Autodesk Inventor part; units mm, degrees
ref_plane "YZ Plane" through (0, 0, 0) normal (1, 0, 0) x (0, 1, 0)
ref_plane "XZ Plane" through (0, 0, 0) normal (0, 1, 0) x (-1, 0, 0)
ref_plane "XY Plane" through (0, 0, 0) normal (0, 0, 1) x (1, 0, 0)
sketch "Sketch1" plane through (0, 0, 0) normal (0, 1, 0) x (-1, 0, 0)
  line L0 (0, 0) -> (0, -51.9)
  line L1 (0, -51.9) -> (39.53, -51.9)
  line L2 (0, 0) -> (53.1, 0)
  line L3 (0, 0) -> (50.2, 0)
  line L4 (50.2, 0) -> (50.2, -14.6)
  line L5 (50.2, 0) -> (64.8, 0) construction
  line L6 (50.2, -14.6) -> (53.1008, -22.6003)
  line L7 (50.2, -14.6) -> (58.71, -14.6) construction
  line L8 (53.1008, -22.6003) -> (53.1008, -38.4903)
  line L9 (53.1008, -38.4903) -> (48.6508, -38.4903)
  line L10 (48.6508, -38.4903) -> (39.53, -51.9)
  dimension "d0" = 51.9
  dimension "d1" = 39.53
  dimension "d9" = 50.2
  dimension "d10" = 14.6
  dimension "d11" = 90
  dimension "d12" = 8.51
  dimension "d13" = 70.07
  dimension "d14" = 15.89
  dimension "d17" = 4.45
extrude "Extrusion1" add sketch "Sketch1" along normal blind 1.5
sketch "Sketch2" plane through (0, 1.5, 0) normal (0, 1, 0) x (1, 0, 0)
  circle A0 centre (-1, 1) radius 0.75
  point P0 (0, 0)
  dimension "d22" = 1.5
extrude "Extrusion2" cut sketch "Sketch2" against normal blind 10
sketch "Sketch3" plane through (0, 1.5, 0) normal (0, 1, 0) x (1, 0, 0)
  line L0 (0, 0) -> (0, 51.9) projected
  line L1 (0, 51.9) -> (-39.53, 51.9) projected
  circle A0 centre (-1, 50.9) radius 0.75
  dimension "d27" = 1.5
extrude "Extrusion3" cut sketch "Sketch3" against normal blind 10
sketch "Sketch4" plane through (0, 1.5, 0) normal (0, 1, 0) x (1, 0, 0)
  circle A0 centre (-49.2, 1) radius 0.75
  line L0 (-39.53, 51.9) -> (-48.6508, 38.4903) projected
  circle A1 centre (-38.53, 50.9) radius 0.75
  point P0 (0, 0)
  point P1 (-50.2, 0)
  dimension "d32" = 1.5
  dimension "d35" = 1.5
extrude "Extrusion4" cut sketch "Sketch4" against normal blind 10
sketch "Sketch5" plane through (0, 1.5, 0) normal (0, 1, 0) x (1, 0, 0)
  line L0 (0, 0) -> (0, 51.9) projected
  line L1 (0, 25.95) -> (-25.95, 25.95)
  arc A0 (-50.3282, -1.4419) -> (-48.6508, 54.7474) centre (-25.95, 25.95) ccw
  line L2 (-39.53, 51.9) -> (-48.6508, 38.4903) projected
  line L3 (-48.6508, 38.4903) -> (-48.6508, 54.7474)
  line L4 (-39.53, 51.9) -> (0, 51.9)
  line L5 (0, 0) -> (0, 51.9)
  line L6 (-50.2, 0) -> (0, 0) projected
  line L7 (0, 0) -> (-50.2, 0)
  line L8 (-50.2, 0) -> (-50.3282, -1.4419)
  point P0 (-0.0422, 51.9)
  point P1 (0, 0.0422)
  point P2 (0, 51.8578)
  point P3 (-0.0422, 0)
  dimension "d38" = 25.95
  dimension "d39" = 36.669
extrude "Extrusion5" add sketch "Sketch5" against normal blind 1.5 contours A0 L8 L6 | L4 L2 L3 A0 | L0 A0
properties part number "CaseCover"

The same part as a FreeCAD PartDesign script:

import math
import FreeCAD as App
import Part
import Sketcher
from FreeCAD import Vector
Q = App.Units.Quantity

doc = App.newDocument("Part")
params = doc.addObject("Spreadsheet::Sheet", "Params")
for row, (alias, value) in enumerate([
    ("sketch1_width", "50.2 mm"),
    ("sketch1_height", "51.9 mm"),
    ("sketch1_height2", "14.6 mm"),
    ("sketch1_width2", "39.53 mm"),
    ("sketch1_width3", "4.45 mm"),
    ("pad1_length", "1.5 mm"),
    ("sketch2_diameter", "1.5 mm"),
    ("pocket1_length", "10 mm"),
    ("sketch3_diameter", "1.5 mm"),
    ("pocket2_length", "10 mm"),
    ("sketch4_diameter", "1.5 mm"),
    ("pocket3_length", "10 mm"),
    ("pad2_length", "1.5 mm"),
], start=1):
    params.set(f"A{row}", alias)
    params.set(f"B{row}", "=" + value)
    params.setAlias(f"B{row}", alias)

body = doc.addObject("PartDesign::Body", "Body")

# Sketch on XZ plane
sketch1 = body.newObject("Sketcher::SketchObject", "Sketch")
sketch1.AttachmentSupport = (doc.getObject("XZ_Plane"), [""])
sketch1.MapMode = "FlatFace"
sketch1.addGeometry(Part.LineSegment(Vector(-50.2, 0, 0), Vector(0, 0, 0)), False)
sketch1.addGeometry(Part.LineSegment(Vector(0, 0, 0), Vector(0, -51.9, 0)), False)
sketch1.addGeometry(Part.LineSegment(Vector(0, -51.9, 0), Vector(-39.5, -51.9, 0)), False)
sketch1.addGeometry(Part.LineSegment(Vector(-39.5, -51.9, 0), Vector(-48.7, -38.5, 0)), False)
sketch1.addGeometry(Part.LineSegment(Vector(-48.7, -38.5, 0), Vector(-53.1, -38.5, 0)), False)
sketch1.addGeometry(Part.LineSegment(Vector(-53.1, -38.5, 0), Vector(-53.1, -22.6, 0)), False)
sketch1.addGeometry(Part.LineSegment(Vector(-53.1, -22.6, 0), Vector(-50.2, -14.6, 0)), False)
sketch1.addGeometry(Part.LineSegment(Vector(-50.2, -14.6, 0), Vector(-50.2, 0, 0)), False)
sketch1.addConstraint(Sketcher.Constraint("Coincident", 0, 2, 1, 1))
sketch1.addConstraint(Sketcher.Constraint("Coincident", 1, 2, 2, 1))
sketch1.addConstraint(Sketcher.Constraint("Coincident", 2, 2, 3, 1))
sketch1.addConstraint(Sketcher.Constraint("Coincident", 3, 2, 4, 1))
sketch1.addConstraint(Sketcher.Constraint("Coincident", 4, 2, 5, 1))
sketch1.addConstraint(Sketcher.Constraint("Coincident", 5, 2, 6, 1))
sketch1.addConstraint(Sketcher.Constraint("Coincident", 6, 2, 7, 1))
sketch1.addConstraint(Sketcher.Constraint("Coincident", 7, 2, 0, 1))
sketch1.addConstraint(Sketcher.Constraint("Horizontal", 0))
sketch1.addConstraint(Sketcher.Constraint("Vertical", 1))
sketch1.addConstraint(Sketcher.Constraint("Horizontal", 2))
sketch1.addConstraint(Sketcher.Constraint("Horizontal", 4))
sketch1.addConstraint(Sketcher.Constraint("Vertical", 5))
sketch1.addConstraint(Sketcher.Constraint("Vertical", 7))
sketch1.addConstraint(Sketcher.Constraint("Coincident", 0, 2, -1, 1))
sketch1.addConstraint(Sketcher.Constraint("DistanceX", 0, 1, 0, 2, 50.2))
sketch1.addConstraint(Sketcher.Constraint("DistanceY", 1, 2, 1, 1, 51.9))
sketch1.addConstraint(Sketcher.Constraint("DistanceY", 7, 1, 7, 2, 14.6))
sketch1.addConstraint(Sketcher.Constraint("DistanceX", 2, 2, 2, 1, 39.53))
sketch1.addConstraint(Sketcher.Constraint("DistanceX", 4, 2, 4, 1, 4.45))
sketch1.addConstraint(Sketcher.Constraint("DistanceY", 5, 1, 5, 2, 15.89))
sketch1.addConstraint(Sketcher.Constraint("Angle", 6, Q("70.07 deg")))
sketch1.addConstraint(Sketcher.Constraint("Distance", 6, 8.51))
sketch1.setExpression("Constraints[15]", "Params.sketch1_width")
sketch1.setExpression("Constraints[16]", "Params.sketch1_height")
sketch1.setExpression("Constraints[17]", "Params.sketch1_height2")
sketch1.setExpression("Constraints[18]", "Params.sketch1_width2")
sketch1.setExpression("Constraints[19]", "Params.sketch1_width3")
pad1 = body.newObject("PartDesign::Pad", "Pad")
pad1.Profile = sketch1
pad1.setExpression("Length", "Params.pad1_length")
pad1.Reversed = True

# Sketch on XZ plane
sketch2 = body.newObject("Sketcher::SketchObject", "Sketch001")
sketch2.AttachmentSupport = (doc.getObject("XZ_Plane"), [""])
sketch2.MapMode = "FlatFace"
sketch2.AttachmentOffset = App.Placement(Vector(0, 0, -1.5), App.Rotation())
sketch2.addGeometry(Part.Circle(Vector(-1, -1, 0), Vector(0, 0, 1), 0.8), False)
sketch2.addConstraint(Sketcher.Constraint("Diameter", 0, 1.5))
sketch2.addConstraint(Sketcher.Constraint("DistanceX", 0, 3, -1, 1, 1.0))
sketch2.addConstraint(Sketcher.Constraint("DistanceY", 0, 3, -1, 1, 1.0))
sketch2.setExpression("Constraints[0]", "Params.sketch2_diameter")
pocket1 = body.newObject("PartDesign::Pocket", "Pocket")
pocket1.Profile = sketch2
pocket1.setExpression("Length", "Params.pocket1_length")
pocket1.Reversed = True

# Sketch on XZ plane
sketch3 = body.newObject("Sketcher::SketchObject", "Sketch002")
sketch3.AttachmentSupport = (doc.getObject("XZ_Plane"), [""])
sketch3.MapMode = "FlatFace"
sketch3.AttachmentOffset = App.Placement(Vector(0, 0, -1.5), App.Rotation())
sketch3.addGeometry(Part.Circle(Vector(-1, -50.9, 0), Vector(0, 0, 1), 0.8), False)
sketch3.addConstraint(Sketcher.Constraint("Diameter", 0, 1.5))
sketch3.addConstraint(Sketcher.Constraint("DistanceX", 0, 3, -1, 1, 1.0))
sketch3.addConstraint(Sketcher.Constraint("DistanceY", 0, 3, -1, 1, 50.9))
sketch3.setExpression("Constraints[0]", "Params.sketch3_diameter")
pocket2 = body.newObject("PartDesign::Pocket", "Pocket001")
pocket2.Profile = sketch3
pocket2.setExpression("Length", "Params.pocket2_length")
pocket2.Reversed = True

# Sketch on XZ plane
sketch4 = body.newObject("Sketcher::SketchObject", "Sketch003")
sketch4.AttachmentSupport = (doc.getObject("XZ_Plane"), [""])
sketch4.MapMode = "FlatFace"
sketch4.AttachmentOffset = App.Placement(Vector(0, 0, -1.5), App.Rotation())
sketch4.addGeometry(Part.Circle(Vector(-49.2, -1, 0), Vector(0, 0, 1), 0.8), False)
sketch4.addGeometry(Part.Circle(Vector(-38.5, -50.9, 0), Vector(0, 0, 1), 0.8), False)
sketch4.addConstraint(Sketcher.Constraint("Equal", 0, 1))
sketch4.addConstraint(Sketcher.Constraint("Diameter", 0, 1.5))
sketch4.addConstraint(Sketcher.Constraint("DistanceY", 0, 3, -1, 1, 1.0))
sketch4.addConstraint(Sketcher.Constraint("DistanceX", 0, 3, -1, 1, 49.2))
sketch4.addConstraint(Sketcher.Constraint("DistanceY", 1, 3, -1, 1, 50.9))
sketch4.addConstraint(Sketcher.Constraint("DistanceX", 1, 3, -1, 1, 38.53))
sketch4.setExpression("Constraints[1]", "Params.sketch4_diameter")
pocket3 = body.newObject("PartDesign::Pocket", "Pocket002")
pocket3.Profile = sketch4
pocket3.setExpression("Length", "Params.pocket3_length")
pocket3.Reversed = True

# Sketch on XZ plane
sketch5 = body.newObject("Sketcher::SketchObject", "Sketch004")
sketch5.AttachmentSupport = (doc.getObject("XZ_Plane"), [""])
sketch5.MapMode = "FlatFace"
sketch5.AttachmentOffset = App.Placement(Vector(0, 0, -1.5), App.Rotation())
sketch5.addGeometry(Part.ArcOfCircle(Part.Circle(Vector(-25.9, -25.9, 0), Vector(0, 0, 1), 36.7), math.radians(45), math.radians(132)), False)
sketch5.addGeometry(Part.LineSegment(Vector(0, 0, 0), Vector(-50.2, 0, 0)), False)
sketch5.addGeometry(Part.LineSegment(Vector(-50.2, 0, 0), Vector(-50.3, 1.4, 0)), False)
sketch5.addGeometry(Part.LineSegment(Vector(-39.5, -51.9, 0), Vector(0, -51.9, 0)), False)
sketch5.addGeometry(Part.ArcOfCircle(Part.Circle(Vector(-25.9, -25.9, 0), Vector(0, 0, 1), 36.7), math.radians(-128), math.radians(-45)), False)
sketch5.addGeometry(Part.LineSegment(Vector(-48.7, -54.7, 0), Vector(-48.7, -38.5, 0)), False)
sketch5.addGeometry(Part.LineSegment(Vector(-48.7, -38.5, 0), Vector(-39.5, -51.9, 0)), False)
sketch5.addGeometry(Part.LineSegment(Vector(0, -51.9, 0), Vector(0, 0, 0)), False)
sketch5.addGeometry(Part.ArcOfCircle(Part.Circle(Vector(-25.9, -25.9, 0), Vector(0, 0, 1), 36.7), math.radians(-45), math.radians(45)), False)
sketch5.addConstraint(Sketcher.Constraint("Coincident", 0, 1, 1, 1))
sketch5.addConstraint(Sketcher.Constraint("Coincident", 1, 2, 2, 1))
sketch5.addConstraint(Sketcher.Constraint("Coincident", 2, 2, 0, 2))
sketch5.addConstraint(Sketcher.Constraint("Coincident", 3, 2, 4, 2))
sketch5.addConstraint(Sketcher.Constraint("Coincident", 4, 1, 5, 1))
sketch5.addConstraint(Sketcher.Constraint("Coincident", 5, 2, 6, 1))
sketch5.addConstraint(Sketcher.Constraint("Coincident", 6, 2, 3, 1))
sketch5.addConstraint(Sketcher.Constraint("Coincident", 7, 1, 8, 1))
sketch5.addConstraint(Sketcher.Constraint("Coincident", 8, 2, 7, 2))
sketch5.addConstraint(Sketcher.Constraint("Horizontal", 1))
sketch5.addConstraint(Sketcher.Constraint("Horizontal", 3))
sketch5.addConstraint(Sketcher.Constraint("Vertical", 5))
sketch5.addConstraint(Sketcher.Constraint("Vertical", 7))
sketch5.addConstraint(Sketcher.Constraint("Coincident", 4, 3, 0, 3))
sketch5.addConstraint(Sketcher.Constraint("Coincident", 8, 3, 0, 3))
sketch5.addConstraint(Sketcher.Constraint("Equal", 0, 4))
sketch5.addConstraint(Sketcher.Constraint("Equal", 4, 8))
sketch5.addConstraint(Sketcher.Constraint("PointOnObject", 0, 1, -1))
sketch5.addConstraint(Sketcher.Constraint("PointOnObject", 7, 1, -2))
sketch5.addConstraint(Sketcher.Constraint("Vertical", 0, 1, 3, 2))
sketch5.addConstraint(Sketcher.Constraint("Radius", 0, 36.669))
sketch5.addConstraint(Sketcher.Constraint("DistanceX", 0, 3, -1, 1, 25.95))
sketch5.addConstraint(Sketcher.Constraint("DistanceY", 0, 3, -1, 1, 25.95))
sketch5.addConstraint(Sketcher.Constraint("DistanceX", 1, 2, -1, 1, 50.2))
sketch5.addConstraint(Sketcher.Constraint("Angle", 2, Q("95.0808 deg")))
sketch5.addConstraint(Sketcher.Constraint("DistanceY", 5, 1, 5, 2, 16.257))
sketch5.addConstraint(Sketcher.Constraint("DistanceX", 6, 2, -1, 1, 39.53))
sketch5.addConstraint(Sketcher.Constraint("Distance", 6, 16.2176))
pad2 = body.newObject("PartDesign::Pad", "Pad001")
pad2.Profile = sketch5
pad2.setExpression("Length", "Params.pad2_length")

doc.recompute()
